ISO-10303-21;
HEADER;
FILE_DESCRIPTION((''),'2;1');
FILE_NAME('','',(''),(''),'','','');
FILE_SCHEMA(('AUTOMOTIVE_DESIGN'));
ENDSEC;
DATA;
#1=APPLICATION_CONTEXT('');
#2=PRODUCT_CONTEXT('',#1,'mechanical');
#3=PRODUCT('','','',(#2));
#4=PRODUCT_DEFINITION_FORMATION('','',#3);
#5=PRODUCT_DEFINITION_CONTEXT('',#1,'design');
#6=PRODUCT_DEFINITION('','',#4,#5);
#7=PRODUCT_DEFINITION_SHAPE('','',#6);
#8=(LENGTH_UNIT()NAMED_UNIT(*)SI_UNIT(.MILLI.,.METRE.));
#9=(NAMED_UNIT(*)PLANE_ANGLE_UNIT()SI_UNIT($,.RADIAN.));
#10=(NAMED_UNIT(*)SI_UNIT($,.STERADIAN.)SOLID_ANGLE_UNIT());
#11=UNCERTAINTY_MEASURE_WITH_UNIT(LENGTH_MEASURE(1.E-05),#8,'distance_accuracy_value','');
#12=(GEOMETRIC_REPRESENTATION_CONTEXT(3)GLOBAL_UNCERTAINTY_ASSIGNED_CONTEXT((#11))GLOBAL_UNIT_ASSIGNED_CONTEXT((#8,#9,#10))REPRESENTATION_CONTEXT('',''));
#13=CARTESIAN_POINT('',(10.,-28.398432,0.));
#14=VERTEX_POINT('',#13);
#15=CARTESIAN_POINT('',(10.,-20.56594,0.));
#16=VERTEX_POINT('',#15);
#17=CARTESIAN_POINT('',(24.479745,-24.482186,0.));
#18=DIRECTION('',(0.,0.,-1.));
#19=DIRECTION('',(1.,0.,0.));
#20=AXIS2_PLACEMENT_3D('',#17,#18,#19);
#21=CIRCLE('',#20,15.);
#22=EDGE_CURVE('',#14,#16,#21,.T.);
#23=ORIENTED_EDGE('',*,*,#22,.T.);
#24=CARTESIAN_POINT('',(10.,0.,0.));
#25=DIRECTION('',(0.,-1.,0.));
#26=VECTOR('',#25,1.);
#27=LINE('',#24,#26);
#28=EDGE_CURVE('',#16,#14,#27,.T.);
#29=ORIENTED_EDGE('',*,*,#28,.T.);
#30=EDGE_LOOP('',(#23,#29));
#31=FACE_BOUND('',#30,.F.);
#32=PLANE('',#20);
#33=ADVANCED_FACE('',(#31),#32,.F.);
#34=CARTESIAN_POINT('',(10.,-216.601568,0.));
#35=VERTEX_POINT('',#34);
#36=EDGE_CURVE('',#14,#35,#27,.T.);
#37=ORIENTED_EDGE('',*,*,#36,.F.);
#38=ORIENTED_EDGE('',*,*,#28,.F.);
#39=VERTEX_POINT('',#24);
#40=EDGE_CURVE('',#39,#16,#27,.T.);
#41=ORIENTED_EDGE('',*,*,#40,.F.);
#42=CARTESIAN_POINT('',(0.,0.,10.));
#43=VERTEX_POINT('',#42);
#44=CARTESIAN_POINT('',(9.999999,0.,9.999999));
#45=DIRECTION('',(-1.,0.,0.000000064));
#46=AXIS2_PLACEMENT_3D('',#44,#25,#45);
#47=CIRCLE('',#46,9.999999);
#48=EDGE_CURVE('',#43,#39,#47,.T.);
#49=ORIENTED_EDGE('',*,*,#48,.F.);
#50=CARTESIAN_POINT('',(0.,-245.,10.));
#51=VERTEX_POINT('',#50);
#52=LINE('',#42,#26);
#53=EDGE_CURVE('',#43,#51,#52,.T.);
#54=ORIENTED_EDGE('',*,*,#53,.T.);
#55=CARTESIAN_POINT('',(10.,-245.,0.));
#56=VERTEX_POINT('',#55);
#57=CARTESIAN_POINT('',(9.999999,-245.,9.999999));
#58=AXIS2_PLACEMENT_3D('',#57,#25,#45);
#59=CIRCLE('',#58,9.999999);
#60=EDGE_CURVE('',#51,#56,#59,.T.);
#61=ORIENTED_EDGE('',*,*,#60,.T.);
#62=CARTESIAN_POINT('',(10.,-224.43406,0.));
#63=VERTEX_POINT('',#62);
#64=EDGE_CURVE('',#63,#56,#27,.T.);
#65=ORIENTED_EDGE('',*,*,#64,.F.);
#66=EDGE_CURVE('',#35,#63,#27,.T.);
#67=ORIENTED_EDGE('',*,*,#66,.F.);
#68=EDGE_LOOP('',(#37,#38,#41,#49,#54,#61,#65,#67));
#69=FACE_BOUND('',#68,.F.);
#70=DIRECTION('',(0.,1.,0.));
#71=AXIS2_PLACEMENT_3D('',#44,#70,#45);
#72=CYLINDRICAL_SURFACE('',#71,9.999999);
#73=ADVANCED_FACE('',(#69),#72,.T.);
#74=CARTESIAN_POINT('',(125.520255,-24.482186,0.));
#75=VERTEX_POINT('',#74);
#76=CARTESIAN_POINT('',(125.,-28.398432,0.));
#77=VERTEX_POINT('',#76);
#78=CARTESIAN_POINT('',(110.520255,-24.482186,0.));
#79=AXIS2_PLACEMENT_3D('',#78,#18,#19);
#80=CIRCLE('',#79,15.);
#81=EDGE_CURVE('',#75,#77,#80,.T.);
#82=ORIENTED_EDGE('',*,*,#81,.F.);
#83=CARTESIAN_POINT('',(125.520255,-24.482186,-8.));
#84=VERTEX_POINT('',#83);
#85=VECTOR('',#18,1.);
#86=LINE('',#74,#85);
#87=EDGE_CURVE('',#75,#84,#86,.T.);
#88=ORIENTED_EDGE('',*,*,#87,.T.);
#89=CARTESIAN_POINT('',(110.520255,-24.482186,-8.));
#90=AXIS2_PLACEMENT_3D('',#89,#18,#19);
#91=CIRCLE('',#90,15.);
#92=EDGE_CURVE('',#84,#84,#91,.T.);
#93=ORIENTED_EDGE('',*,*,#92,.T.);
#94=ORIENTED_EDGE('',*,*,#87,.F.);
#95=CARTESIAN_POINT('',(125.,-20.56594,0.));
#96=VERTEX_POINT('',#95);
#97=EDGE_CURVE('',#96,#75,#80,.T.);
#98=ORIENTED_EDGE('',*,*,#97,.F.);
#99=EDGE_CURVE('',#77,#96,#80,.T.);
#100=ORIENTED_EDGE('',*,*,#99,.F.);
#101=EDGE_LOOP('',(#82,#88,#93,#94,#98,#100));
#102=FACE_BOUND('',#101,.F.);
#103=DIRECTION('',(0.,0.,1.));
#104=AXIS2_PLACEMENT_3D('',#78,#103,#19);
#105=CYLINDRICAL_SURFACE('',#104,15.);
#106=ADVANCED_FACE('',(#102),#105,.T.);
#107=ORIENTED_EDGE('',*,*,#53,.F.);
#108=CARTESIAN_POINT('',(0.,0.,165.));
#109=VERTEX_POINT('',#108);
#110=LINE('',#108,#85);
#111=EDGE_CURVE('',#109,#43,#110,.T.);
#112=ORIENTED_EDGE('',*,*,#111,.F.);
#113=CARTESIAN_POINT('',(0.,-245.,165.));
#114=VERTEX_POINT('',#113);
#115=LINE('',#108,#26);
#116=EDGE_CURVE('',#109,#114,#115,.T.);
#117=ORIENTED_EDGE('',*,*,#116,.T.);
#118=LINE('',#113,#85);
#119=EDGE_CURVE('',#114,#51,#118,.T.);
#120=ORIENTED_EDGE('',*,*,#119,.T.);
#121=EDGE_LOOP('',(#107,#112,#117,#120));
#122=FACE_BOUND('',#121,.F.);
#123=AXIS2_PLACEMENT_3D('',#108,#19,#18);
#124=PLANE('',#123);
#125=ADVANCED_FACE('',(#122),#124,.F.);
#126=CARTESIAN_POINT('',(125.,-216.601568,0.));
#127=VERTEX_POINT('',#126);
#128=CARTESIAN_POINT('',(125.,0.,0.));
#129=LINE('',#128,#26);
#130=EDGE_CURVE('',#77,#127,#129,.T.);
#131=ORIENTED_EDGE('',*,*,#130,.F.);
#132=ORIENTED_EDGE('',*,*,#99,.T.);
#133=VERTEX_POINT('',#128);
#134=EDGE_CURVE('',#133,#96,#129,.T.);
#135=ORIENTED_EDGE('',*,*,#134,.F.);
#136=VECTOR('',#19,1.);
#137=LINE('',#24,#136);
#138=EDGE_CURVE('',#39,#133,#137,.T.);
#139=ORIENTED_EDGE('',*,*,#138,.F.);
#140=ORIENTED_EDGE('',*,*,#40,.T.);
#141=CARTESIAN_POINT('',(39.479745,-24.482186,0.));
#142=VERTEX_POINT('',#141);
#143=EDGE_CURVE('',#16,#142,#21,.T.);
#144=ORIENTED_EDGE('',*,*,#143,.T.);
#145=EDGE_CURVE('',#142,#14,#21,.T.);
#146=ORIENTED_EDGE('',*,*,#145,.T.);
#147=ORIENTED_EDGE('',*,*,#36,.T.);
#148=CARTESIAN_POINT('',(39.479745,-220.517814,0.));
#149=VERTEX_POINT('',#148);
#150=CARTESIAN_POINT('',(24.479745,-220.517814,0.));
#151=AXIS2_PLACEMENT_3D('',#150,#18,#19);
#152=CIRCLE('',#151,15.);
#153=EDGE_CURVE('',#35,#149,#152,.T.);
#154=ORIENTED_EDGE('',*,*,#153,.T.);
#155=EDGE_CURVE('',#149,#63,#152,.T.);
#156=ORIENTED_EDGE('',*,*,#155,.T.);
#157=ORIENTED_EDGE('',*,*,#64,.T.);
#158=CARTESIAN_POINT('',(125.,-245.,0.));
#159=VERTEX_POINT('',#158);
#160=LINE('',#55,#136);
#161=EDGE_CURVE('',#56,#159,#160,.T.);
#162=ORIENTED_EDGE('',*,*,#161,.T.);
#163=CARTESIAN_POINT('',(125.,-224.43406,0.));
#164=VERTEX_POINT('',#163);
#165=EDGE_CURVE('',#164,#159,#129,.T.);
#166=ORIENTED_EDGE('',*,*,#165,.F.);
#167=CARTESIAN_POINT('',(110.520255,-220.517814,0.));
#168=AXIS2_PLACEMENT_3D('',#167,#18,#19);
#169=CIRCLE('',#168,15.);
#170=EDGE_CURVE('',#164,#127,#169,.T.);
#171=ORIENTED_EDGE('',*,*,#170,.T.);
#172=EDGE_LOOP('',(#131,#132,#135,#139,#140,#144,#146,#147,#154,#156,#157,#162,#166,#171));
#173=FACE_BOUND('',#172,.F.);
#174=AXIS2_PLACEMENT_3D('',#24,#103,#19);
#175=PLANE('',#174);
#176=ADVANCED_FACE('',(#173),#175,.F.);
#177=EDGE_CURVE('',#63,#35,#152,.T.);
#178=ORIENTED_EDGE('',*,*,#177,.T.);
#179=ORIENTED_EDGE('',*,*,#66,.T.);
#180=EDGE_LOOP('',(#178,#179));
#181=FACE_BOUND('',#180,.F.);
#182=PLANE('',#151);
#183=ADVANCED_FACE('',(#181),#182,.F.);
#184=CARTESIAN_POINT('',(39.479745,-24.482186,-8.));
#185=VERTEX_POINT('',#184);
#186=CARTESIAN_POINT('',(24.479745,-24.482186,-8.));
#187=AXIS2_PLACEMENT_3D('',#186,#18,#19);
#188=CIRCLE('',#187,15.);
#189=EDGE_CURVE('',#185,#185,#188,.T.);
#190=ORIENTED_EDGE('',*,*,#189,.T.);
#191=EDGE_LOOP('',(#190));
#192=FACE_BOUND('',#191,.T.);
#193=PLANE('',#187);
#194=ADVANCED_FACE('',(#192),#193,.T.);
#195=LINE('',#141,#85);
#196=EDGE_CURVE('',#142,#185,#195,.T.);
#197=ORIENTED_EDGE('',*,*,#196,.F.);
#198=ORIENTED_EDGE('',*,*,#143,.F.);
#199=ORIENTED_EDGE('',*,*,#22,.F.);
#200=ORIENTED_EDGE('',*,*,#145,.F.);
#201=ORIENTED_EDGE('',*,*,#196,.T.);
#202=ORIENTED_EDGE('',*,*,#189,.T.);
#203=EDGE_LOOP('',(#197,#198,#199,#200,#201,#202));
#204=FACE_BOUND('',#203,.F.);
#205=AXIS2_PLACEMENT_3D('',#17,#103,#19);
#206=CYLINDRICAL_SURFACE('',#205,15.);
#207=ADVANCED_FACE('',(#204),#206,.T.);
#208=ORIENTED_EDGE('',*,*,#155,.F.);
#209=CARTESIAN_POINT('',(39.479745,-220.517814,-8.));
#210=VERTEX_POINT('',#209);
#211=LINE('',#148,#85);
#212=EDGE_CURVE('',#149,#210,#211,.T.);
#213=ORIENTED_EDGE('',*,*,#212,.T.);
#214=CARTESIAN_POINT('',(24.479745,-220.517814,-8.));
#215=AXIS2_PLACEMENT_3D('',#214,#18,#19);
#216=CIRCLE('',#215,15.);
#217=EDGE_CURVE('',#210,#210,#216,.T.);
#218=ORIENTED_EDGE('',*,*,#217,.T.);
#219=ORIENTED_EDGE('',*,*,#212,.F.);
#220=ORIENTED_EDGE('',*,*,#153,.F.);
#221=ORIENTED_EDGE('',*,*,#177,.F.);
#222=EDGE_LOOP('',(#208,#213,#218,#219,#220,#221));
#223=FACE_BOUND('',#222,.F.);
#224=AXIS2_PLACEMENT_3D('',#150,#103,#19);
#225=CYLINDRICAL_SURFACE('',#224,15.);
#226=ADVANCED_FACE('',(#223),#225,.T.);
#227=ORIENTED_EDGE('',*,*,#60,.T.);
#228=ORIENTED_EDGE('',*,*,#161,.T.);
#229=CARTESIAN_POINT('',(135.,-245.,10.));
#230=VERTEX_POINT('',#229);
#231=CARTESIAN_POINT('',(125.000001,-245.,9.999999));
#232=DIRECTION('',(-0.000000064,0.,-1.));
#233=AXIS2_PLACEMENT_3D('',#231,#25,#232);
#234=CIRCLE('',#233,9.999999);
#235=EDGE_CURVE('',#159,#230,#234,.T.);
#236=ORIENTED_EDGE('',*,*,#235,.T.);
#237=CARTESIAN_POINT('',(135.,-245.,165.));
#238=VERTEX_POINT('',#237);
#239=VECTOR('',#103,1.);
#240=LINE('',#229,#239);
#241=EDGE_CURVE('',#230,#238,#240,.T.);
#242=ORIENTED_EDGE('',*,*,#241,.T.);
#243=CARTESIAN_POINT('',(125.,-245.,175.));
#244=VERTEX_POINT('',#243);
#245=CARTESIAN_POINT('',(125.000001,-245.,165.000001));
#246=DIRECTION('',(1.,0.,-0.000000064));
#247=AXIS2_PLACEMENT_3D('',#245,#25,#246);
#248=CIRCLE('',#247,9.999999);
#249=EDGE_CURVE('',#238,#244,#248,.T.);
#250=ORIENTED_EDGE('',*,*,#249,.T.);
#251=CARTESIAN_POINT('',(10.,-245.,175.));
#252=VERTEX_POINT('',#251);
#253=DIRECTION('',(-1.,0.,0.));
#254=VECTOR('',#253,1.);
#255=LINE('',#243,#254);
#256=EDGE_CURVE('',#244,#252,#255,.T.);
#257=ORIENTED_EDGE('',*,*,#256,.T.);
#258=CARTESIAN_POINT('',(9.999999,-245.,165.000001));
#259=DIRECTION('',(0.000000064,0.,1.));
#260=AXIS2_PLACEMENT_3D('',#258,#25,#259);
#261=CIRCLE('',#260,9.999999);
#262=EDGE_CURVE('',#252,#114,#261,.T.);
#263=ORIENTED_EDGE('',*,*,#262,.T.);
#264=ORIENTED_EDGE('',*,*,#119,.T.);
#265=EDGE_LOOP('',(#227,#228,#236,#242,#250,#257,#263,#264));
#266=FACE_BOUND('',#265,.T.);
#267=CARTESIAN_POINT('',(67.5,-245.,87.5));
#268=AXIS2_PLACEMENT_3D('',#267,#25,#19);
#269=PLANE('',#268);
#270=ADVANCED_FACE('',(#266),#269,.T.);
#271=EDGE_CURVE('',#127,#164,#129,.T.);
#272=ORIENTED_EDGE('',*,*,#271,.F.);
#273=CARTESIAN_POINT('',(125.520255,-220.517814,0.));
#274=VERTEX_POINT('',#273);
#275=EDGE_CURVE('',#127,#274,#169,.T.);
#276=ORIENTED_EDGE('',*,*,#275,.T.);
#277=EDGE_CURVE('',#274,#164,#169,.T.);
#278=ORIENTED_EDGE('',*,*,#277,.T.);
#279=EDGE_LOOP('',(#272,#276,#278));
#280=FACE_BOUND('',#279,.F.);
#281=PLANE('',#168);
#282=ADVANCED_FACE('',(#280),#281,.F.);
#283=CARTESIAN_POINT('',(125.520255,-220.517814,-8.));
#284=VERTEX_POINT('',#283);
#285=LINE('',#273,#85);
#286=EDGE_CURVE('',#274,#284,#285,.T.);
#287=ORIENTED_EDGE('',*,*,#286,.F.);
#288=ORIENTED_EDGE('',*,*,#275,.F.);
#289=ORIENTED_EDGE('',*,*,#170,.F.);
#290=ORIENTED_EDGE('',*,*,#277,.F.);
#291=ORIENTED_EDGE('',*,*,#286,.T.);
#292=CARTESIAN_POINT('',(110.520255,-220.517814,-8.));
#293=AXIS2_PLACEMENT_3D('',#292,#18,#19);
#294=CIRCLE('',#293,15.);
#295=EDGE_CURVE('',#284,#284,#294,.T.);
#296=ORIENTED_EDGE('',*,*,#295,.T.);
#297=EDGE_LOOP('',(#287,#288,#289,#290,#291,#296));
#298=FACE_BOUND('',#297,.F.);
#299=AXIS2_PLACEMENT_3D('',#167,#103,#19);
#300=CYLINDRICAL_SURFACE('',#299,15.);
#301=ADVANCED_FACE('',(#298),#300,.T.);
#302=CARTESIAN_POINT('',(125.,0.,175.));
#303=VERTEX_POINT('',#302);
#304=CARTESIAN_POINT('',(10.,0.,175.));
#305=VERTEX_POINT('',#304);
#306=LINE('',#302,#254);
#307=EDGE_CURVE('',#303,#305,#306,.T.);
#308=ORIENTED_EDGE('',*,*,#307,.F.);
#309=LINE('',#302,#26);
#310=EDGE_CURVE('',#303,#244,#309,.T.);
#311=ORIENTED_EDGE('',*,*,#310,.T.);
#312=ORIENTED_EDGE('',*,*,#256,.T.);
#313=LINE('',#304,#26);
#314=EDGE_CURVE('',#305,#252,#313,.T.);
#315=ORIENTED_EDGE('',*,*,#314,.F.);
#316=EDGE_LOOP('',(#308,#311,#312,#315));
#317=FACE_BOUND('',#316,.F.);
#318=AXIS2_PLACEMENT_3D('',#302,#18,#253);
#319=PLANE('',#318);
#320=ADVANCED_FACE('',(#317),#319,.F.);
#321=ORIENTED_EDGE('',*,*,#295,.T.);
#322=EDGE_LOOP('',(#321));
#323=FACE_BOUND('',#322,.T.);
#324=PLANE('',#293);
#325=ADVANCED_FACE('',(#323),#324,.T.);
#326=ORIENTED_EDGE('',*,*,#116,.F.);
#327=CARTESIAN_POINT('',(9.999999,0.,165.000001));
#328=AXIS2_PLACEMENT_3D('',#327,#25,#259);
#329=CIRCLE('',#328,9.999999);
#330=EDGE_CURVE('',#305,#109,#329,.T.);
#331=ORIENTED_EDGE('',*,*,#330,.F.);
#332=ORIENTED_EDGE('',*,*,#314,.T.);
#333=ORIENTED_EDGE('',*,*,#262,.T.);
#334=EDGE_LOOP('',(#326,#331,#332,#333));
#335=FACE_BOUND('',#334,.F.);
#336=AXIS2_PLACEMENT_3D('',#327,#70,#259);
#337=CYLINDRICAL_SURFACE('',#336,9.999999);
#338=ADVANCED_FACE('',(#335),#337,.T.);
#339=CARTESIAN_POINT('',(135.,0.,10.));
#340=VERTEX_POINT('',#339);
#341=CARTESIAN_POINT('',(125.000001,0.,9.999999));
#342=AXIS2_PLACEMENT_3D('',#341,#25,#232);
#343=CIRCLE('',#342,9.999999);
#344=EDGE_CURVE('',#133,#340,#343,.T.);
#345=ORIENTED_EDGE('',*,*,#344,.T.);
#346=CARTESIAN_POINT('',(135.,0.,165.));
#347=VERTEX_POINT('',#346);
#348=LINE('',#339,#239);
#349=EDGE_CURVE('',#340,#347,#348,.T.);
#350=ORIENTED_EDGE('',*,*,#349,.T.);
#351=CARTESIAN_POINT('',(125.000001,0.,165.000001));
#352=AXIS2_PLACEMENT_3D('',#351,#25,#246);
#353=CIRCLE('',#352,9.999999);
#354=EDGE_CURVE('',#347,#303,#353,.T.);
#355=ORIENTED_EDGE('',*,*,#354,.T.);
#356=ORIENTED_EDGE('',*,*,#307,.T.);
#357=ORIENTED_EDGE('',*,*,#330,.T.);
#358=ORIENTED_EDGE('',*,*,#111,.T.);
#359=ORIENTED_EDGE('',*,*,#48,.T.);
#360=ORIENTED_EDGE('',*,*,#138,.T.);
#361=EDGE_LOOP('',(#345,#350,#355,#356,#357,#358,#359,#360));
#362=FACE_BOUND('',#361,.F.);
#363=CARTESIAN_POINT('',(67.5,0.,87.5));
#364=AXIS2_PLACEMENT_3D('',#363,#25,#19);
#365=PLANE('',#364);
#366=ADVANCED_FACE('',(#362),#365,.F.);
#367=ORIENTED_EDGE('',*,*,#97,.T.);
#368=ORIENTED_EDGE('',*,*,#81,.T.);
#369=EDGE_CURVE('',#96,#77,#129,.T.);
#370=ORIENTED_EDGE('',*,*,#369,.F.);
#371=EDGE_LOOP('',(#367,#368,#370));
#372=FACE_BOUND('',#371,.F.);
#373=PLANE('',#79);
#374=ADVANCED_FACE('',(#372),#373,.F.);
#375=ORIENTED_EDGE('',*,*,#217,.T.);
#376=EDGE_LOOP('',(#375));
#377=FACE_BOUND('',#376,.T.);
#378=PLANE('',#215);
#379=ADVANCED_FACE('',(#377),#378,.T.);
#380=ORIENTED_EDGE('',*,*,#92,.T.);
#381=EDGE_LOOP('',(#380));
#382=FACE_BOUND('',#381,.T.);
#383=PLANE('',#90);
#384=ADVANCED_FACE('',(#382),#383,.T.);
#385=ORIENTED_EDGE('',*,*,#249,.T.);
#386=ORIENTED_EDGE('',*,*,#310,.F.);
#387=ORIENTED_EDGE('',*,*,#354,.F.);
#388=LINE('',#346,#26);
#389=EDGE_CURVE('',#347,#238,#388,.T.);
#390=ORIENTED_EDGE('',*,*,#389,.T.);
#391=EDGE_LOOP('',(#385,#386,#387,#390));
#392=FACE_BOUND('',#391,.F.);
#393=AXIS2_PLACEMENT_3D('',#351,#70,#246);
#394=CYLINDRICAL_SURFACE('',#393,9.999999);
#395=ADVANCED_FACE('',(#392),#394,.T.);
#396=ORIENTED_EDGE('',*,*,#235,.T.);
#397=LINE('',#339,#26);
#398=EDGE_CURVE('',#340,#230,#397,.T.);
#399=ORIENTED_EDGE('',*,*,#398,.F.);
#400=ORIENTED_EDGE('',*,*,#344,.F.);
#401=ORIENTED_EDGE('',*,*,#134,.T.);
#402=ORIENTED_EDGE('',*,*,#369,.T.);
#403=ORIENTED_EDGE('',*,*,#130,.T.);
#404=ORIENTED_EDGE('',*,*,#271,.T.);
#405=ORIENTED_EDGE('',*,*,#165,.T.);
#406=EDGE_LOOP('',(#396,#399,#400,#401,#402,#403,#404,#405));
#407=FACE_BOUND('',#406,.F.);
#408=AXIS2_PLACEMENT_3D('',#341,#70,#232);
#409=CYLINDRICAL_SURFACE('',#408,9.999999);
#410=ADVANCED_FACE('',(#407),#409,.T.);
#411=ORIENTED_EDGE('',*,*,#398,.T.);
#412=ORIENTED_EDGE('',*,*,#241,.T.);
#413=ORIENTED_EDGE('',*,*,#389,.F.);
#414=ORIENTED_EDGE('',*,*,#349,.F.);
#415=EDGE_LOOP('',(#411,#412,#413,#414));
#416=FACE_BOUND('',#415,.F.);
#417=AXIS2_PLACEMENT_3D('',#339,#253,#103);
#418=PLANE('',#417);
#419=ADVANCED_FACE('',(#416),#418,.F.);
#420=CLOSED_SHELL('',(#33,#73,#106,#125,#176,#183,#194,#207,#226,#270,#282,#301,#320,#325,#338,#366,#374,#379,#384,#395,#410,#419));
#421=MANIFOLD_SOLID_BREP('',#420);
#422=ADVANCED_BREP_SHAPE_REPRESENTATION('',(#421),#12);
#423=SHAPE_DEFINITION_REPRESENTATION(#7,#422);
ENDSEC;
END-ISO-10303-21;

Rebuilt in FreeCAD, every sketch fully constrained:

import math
import FreeCAD as App
import Part
import Sketcher
from FreeCAD import Vector
Q = App.Units.Quantity

doc = App.newDocument("Part")
body = doc.addObject("PartDesign::Body", "Body")

# Sketch on XZ plane
sketch1 = doc.addObject("Sketcher::SketchObject", "Sketch")
body.addObject(sketch1)
sketch1.AttachmentSupport = (doc.XZ_Plane, [""])
sketch1.MapMode = "FlatFace"
sketch1.addGeometry([
    Part.ArcOfCircle(Part.Circle(Vector(9.999999, 9.999999, 0), Vector(0, 0, 1), 9.999999), math.radians(179.999996), math.radians(270.000004)),  # 0
    Part.LineSegment(Vector(10, 0, 0), Vector(125, 0, 0)),  # 1
    Part.ArcOfCircle(Part.Circle(Vector(125.000001, 9.999999, 0), Vector(0, 0, 1), 9.999999), math.radians(-90.000004), math.radians(0.000004)),  # 2
    Part.LineSegment(Vector(135, 10, 0), Vector(135, 165, 0)),  # 3
    Part.ArcOfCircle(Part.Circle(Vector(125.000001, 165.000001, 0), Vector(0, 0, 1), 9.999999), math.radians(-0.000004), math.radians(90.000004)),  # 4
    Part.LineSegment(Vector(125, 175, 0), Vector(10, 175, 0)),  # 5
    Part.ArcOfCircle(Part.Circle(Vector(9.999999, 165.000001, 0), Vector(0, 0, 1), 9.999999), math.radians(89.999996), math.radians(180.000004)),  # 6
    Part.LineSegment(Vector(0, 165, 0), Vector(0, 10, 0)),  # 7
], False)
sketch1.addConstraint([
    Sketcher.Constraint("Tangent", 0, 2, 1, 1),
    Sketcher.Constraint("Tangent", 1, 2, 2, 1),
    Sketcher.Constraint("Tangent", 2, 2, 3, 1),
    Sketcher.Constraint("Tangent", 3, 2, 4, 1),
    Sketcher.Constraint("Tangent", 4, 2, 5, 1),
    Sketcher.Constraint("Tangent", 5, 2, 6, 1),
    Sketcher.Constraint("Tangent", 6, 2, 7, 1),
    Sketcher.Constraint("Tangent", 7, 2, 0, 1),
    Sketcher.Constraint("Horizontal", 1),
    Sketcher.Constraint("Vertical", 3),
    Sketcher.Constraint("Horizontal", 5),
    Sketcher.Constraint("Vertical", 7),
    Sketcher.Constraint("Equal", 0, 2),
    Sketcher.Constraint("Equal", 2, 4),
    Sketcher.Constraint("Equal", 4, 6),
    Sketcher.Constraint("PointOnObject", 0, 2, -1),
    Sketcher.Constraint("PointOnObject", 6, 2, -2),
    Sketcher.Constraint("Radius", 0, Q("9.999999 mm")),
    Sketcher.Constraint("DistanceX", 1, 1, 1, 2, Q("115 mm")),
    Sketcher.Constraint("DistanceY", 3, 1, 3, 2, Q("155 mm")),
])
pad1 = doc.addObject("PartDesign::Pad", "Pad")
body.addObject(pad1)
pad1.Profile = sketch1
pad1.Length = 245

# Sketch on XY plane
sketch2 = doc.addObject("Sketcher::SketchObject", "Sketch001")
body.addObject(sketch2)
sketch2.AttachmentSupport = (doc.XY_Plane, [""])
sketch2.MapMode = "FlatFace"
sketch2.addGeometry([
    Part.Circle(Vector(24.479745, -220.517814, 0), Vector(0, 0, 1), 15),
    Part.Circle(Vector(110.520255, -220.517814, 0), Vector(0, 0, 1), 15),
    Part.Circle(Vector(24.479745, -24.482186, 0), Vector(0, 0, 1), 15),
    Part.Circle(Vector(110.520255, -24.482186, 0), Vector(0, 0, 1), 15),
], False)
sketch2.addConstraint([
    Sketcher.Constraint("Equal", 0, 1),
    Sketcher.Constraint("Equal", 1, 2),
    Sketcher.Constraint("Equal", 2, 3),
    Sketcher.Constraint("Horizontal", 0, 3, 1, 3),
    Sketcher.Constraint("Horizontal", 2, 3, 3, 3),
    Sketcher.Constraint("Vertical", 0, 3, 2, 3),
    Sketcher.Constraint("Vertical", 1, 3, 3, 3),
    Sketcher.Constraint("Diameter", 0, Q("30 mm")),
    Sketcher.Constraint("DistanceX", 0, 3, 1, 3, Q("86.04051 mm")),
    Sketcher.Constraint("DistanceX", -1, 1, 0, 3, Q("24.479745 mm")),
    Sketcher.Constraint("DistanceY", 0, 3, -1, 1, Q("220.517814 mm")),
    Sketcher.Constraint("DistanceY", 2, 3, -1, 1, Q("24.482186 mm")),
])
pad2 = doc.addObject("PartDesign::Pad", "Pad001")
body.addObject(pad2)
pad2.Profile = sketch2
pad2.Length = 8
pad2.Reversed = True

doc.recompute()
